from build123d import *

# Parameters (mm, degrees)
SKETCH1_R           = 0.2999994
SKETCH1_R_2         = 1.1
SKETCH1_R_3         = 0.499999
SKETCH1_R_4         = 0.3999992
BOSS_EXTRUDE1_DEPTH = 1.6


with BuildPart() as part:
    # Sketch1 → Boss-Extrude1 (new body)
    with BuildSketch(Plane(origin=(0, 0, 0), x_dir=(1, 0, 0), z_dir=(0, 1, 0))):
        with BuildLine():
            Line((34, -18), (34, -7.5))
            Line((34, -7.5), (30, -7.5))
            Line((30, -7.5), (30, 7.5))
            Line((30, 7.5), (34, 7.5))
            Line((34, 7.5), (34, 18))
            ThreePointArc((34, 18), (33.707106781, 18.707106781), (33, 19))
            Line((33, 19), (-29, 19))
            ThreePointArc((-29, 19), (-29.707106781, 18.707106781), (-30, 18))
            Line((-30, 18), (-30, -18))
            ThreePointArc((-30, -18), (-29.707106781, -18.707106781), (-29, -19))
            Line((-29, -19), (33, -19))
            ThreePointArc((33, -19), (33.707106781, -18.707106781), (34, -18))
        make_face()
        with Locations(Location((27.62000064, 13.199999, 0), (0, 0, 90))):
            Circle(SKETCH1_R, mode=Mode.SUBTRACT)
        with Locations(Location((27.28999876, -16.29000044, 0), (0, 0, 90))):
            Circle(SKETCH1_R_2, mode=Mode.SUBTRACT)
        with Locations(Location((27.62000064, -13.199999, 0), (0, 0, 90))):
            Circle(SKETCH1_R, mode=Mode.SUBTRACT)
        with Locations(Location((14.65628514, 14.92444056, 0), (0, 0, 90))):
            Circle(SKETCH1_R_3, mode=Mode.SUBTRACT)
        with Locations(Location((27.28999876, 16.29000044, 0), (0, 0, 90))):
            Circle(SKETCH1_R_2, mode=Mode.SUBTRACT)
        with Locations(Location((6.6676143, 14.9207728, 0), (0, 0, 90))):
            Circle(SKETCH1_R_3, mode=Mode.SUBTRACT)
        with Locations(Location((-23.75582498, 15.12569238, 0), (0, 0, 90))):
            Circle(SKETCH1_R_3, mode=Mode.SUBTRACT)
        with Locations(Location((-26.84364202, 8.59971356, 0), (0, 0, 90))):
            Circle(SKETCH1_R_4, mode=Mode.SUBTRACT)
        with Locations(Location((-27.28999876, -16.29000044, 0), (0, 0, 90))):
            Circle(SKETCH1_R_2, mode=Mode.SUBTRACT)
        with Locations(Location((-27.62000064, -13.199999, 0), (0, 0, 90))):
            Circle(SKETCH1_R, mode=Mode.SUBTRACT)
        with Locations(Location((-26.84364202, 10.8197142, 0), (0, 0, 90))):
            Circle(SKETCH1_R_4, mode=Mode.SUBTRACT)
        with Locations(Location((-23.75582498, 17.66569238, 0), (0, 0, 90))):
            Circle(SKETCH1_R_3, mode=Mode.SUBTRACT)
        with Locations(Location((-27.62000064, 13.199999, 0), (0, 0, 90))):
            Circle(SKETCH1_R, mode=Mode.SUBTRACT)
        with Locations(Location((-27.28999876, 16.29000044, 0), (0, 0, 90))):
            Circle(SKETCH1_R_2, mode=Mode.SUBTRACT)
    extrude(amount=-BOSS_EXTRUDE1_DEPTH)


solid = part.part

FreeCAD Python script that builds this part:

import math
import FreeCAD as App
import Part
import Sketcher

V = App.Vector
Q = App.Units.Quantity

doc = App.newDocument("Part")
body = doc.addObject("PartDesign::Body", "Body")

# Sketch on XZ plane
sketch1 = body.newObject("Sketcher::SketchObject", "Sketch")
sketch1.AttachmentSupport = (doc.getObject("XZ_Plane"), [""])
sketch1.MapMode = "FlatFace"
sketch1.addGeometry([
    Part.LineSegment(V(34, 18, 0), V(34, 7.5, 0)),  # 0
    Part.LineSegment(V(34, 7.5, 0), V(30, 7.5, 0)),  # 1
    Part.LineSegment(V(30, 7.5, 0), V(30, -7.5, 0)),  # 2
    Part.LineSegment(V(30, -7.5, 0), V(34, -7.5, 0)),  # 3
    Part.LineSegment(V(34, -7.5, 0), V(34, -18, 0)),  # 4
    Part.ArcOfCircle(Part.Circle(V(33, -18, 0), V(0, 0, 1), 1), math.radians(-90), math.radians(0)),  # 5
    Part.LineSegment(V(33, -19, 0), V(-29, -19, 0)),  # 6
    Part.ArcOfCircle(Part.Circle(V(-29, -18, 0), V(0, 0, 1), 1), math.radians(-180), math.radians(-90)),  # 7
    Part.LineSegment(V(-30, -18, 0), V(-30, 18, 0)),  # 8
    Part.ArcOfCircle(Part.Circle(V(-29, 18, 0), V(0, 0, 1), 1), math.radians(90), math.radians(180)),  # 9
    Part.LineSegment(V(-29, 19, 0), V(33, 19, 0)),  # 10
    Part.ArcOfCircle(Part.Circle(V(33, 18, 0), V(0, 0, 1), 1), math.radians(0), math.radians(90)),  # 11
    Part.Circle(V(-27.29, 16.29, 0), V(0, 0, 1), 1.1),  # 12
    Part.Circle(V(-27.62, 13.2, 0), V(0, 0, 1), 0.3),  # 13
    Part.Circle(V(27.29, 16.29, 0), V(0, 0, 1), 1.1),  # 14
    Part.Circle(V(27.62, 13.2, 0), V(0, 0, 1), 0.3),  # 15
    Part.Circle(V(-26.84, -8.6, 0), V(0, 0, 1), 0.4),  # 16
    Part.Circle(V(-26.84, -10.82, 0), V(0, 0, 1), 0.4),  # 17
    Part.Circle(V(-27.62, -13.2, 0), V(0, 0, 1), 0.3),  # 18
    Part.Circle(V(-23.76, -15.13, 0), V(0, 0, 1), 0.5),  # 19
    Part.Circle(V(-27.29, -16.29, 0), V(0, 0, 1), 1.1),  # 20
    Part.Circle(V(-23.76, -17.67, 0), V(0, 0, 1), 0.5),  # 21
    Part.Circle(V(6.67, -14.92, 0), V(0, 0, 1), 0.5),  # 22
    Part.Circle(V(27.62, -13.2, 0), V(0, 0, 1), 0.3),  # 23
    Part.Circle(V(14.66, -14.92, 0), V(0, 0, 1), 0.5),  # 24
    Part.Circle(V(27.29, -16.29, 0), V(0, 0, 1), 1.1),  # 25
], False)
sketch1.addConstraint([
    Sketcher.Constraint("Coincident", 0, 2, 1, 1),
    Sketcher.Constraint("Coincident", 1, 2, 2, 1),
    Sketcher.Constraint("Coincident", 2, 2, 3, 1),
    Sketcher.Constraint("Coincident", 3, 2, 4, 1),
    Sketcher.Constraint("Tangent", 4, 2, 5, 2),
    Sketcher.Constraint("Tangent", 5, 1, 6, 1),
    Sketcher.Constraint("Tangent", 6, 2, 7, 2),
    Sketcher.Constraint("Tangent", 7, 1, 8, 1),
    Sketcher.Constraint("Tangent", 8, 2, 9, 2),
    Sketcher.Constraint("Tangent", 9, 1, 10, 1),
    Sketcher.Constraint("Tangent", 10, 2, 11, 2),
    Sketcher.Constraint("Tangent", 11, 1, 0, 1),
    Sketcher.Constraint("Vertical", 0),
    Sketcher.Constraint("Horizontal", 1),
    Sketcher.Constraint("Vertical", 2),
    Sketcher.Constraint("Horizontal", 3),
    Sketcher.Constraint("Vertical", 4),
    Sketcher.Constraint("Horizontal", 6),
    Sketcher.Constraint("Vertical", 8),
    Sketcher.Constraint("Horizontal", 10),
    Sketcher.Constraint("Equal", 5, 7),
    Sketcher.Constraint("Equal", 7, 9),
    Sketcher.Constraint("Equal", 9, 11),
    Sketcher.Constraint("Equal", 12, 14),
    Sketcher.Constraint("Equal", 13, 15),
    Sketcher.Constraint("Equal", 16, 17),
    Sketcher.Constraint("Equal", 15, 18),
    Sketcher.Constraint("Equal", 14, 20),
    Sketcher.Constraint("Equal", 19, 21),
    Sketcher.Constraint("Equal", 21, 22),
    Sketcher.Constraint("Equal", 18, 23),
    Sketcher.Constraint("Equal", 22, 24),
    Sketcher.Constraint("Equal", 20, 25),
    Sketcher.Constraint("Symmetric", 15, 3, 18, 3, -1, 1),
    Sketcher.Constraint("Symmetric", 14, 3, 20, 3, -1, 1),
    Sketcher.Constraint("Symmetric", 13, 3, 23, 3, -1, 1),
    Sketcher.Constraint("Symmetric", 12, 3, 25, 3, -1, 1),
    Sketcher.Constraint("Symmetric", 12, 3, 14, 3, -2),
    Sketcher.Constraint("Symmetric", 13, 3, 15, 3, -2),
    Sketcher.Constraint("Symmetric", 5, 3, 11, 3, -1),
    Sketcher.Constraint("Vertical", 16, 3, 17, 3),
    Sketcher.Constraint("Vertical", 19, 3, 21, 3),
    Sketcher.Constraint("Equal", 0, 4),
    Sketcher.Constraint("Diameter", 19, Q("0.999998 mm")),
    Sketcher.Constraint("Radius", 5, Q("1 mm")),
    Sketcher.Constraint("Diameter", 12, Q("2.2 mm")),
    Sketcher.Constraint("Diameter", 13, Q("0.599999 mm")),
    Sketcher.Constraint("Diameter", 16, Q("0.799998 mm")),
    Sketcher.Constraint("DistanceX", 1, 2, 1, 1, Q("4 mm")),
    Sketcher.Constraint("DistanceX", 6, 2, 6, 1, Q("62 mm")),
    Sketcher.Constraint("DistanceY", 2, 2, 2, 1, Q("15 mm")),
    Sketcher.Constraint("DistanceY", 8, 1, 8, 2, Q("36 mm")),
    Sketcher.Constraint("DistanceX", -1, 1, 5, 3, Q("33 mm")),
    Sketcher.Constraint("DistanceY", -1, 1, 13, 3, Q("13.199999 mm")),
    Sketcher.Constraint("DistanceX", 12, 3, -1, 1, Q("27.289999 mm")),
    Sketcher.Constraint("DistanceY", -1, 1, 12, 3, Q("16.29 mm")),
    Sketcher.Constraint("DistanceX", 13, 3, -1, 1, Q("27.620001 mm")),
    Sketcher.Constraint("DistanceY", 17, 3, 16, 3, Q("2.220001 mm")),
    Sketcher.Constraint("DistanceY", 21, 3, 19, 3, Q("2.54 mm")),
    Sketcher.Constraint("DistanceY", 24, 3, -1, 1, Q("14.924441 mm")),
    Sketcher.Constraint("DistanceX", 13, 3, 16, 3, Q("0.776359 mm")),
    Sketcher.Constraint("DistanceY", 19, 3, 17, 3, Q("4.305978 mm")),
    Sketcher.Constraint("DistanceY", 19, 3, 13, 3, Q("28.325691 mm")),
    Sketcher.Constraint("DistanceX", 19, 3, 22, 3, Q("30.423439 mm")),
    Sketcher.Constraint("DistanceY", 19, 3, 22, 3, Q("0.20492 mm")),
    Sketcher.Constraint("DistanceX", 22, 3, 24, 3, Q("7.988671 mm")),
    Sketcher.Constraint("DistanceX", 19, 3, -1, 1, Q("23.755825 mm")),
])
pad1 = body.newObject("PartDesign::Pad", "Pad")
pad1.Profile = sketch1
pad1.Length = 1.6

doc.recompute()
